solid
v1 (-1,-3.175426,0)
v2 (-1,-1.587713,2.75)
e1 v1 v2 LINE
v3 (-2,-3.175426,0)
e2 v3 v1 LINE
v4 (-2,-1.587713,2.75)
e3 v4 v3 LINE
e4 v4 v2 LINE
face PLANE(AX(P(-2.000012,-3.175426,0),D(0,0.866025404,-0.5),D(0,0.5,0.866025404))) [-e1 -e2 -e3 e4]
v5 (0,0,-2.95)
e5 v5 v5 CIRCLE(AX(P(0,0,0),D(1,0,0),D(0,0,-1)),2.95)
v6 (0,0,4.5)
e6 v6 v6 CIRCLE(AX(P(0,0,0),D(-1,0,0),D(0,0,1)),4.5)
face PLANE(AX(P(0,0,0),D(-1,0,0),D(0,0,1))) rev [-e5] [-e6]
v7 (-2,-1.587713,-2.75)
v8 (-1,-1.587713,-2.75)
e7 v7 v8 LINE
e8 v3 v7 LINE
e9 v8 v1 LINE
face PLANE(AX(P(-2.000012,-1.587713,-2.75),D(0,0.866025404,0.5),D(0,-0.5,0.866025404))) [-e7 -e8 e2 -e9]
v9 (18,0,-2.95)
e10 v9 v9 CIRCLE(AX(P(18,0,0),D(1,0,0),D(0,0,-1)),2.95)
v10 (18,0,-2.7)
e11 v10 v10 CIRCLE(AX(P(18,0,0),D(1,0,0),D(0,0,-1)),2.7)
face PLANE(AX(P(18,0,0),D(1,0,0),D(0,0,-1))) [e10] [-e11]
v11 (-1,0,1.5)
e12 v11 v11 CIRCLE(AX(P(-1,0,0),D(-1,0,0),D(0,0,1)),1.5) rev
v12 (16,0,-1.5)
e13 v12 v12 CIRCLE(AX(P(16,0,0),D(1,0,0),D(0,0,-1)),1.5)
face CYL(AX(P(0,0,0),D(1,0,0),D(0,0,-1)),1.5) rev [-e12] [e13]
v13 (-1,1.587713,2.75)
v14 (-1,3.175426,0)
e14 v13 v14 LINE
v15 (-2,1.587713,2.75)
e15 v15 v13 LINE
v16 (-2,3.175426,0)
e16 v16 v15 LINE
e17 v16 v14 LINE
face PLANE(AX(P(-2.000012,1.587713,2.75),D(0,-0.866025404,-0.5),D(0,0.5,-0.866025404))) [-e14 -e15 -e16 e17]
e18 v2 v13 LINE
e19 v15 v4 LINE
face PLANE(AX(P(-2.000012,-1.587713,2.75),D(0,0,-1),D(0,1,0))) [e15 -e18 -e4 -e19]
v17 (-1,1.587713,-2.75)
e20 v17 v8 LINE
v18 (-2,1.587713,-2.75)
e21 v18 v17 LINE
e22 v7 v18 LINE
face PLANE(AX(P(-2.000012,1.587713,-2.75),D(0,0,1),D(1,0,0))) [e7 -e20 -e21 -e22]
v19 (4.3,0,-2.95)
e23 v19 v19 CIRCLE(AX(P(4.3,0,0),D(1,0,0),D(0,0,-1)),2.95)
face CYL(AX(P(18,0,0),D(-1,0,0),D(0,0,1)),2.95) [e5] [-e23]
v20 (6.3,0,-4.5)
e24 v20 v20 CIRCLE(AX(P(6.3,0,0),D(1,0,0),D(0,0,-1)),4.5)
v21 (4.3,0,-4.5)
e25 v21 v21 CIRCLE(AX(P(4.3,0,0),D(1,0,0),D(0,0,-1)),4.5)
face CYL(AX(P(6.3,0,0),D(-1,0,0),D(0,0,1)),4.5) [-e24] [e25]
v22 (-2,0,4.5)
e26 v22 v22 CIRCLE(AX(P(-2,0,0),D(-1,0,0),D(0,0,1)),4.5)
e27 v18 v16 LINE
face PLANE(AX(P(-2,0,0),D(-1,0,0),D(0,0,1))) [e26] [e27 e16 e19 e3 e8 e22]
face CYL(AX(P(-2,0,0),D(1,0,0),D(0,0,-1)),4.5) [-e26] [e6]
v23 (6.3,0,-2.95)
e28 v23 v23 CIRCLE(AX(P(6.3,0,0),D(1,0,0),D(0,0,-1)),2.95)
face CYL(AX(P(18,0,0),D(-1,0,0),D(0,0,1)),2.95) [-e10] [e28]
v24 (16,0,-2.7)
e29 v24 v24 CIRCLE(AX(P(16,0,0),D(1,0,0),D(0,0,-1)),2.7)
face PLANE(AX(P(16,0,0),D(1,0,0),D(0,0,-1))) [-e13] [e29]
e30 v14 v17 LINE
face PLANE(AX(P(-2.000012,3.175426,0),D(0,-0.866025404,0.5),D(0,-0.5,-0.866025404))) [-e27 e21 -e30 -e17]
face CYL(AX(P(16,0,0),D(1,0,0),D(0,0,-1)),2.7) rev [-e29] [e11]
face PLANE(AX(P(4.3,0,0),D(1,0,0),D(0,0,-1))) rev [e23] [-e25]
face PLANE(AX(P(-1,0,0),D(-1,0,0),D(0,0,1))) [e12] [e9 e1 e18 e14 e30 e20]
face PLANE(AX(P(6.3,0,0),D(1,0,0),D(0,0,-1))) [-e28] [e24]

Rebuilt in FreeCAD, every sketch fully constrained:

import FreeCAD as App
import Part
import Sketcher
from FreeCAD import Vector
Q = App.Units.Quantity


def add_polygon(sketch, points):
    """Adds a closed chain of lines whose ends are joined by coincident constraints."""
    first, n = sketch.GeometryCount, len(points)
    for a, b in zip(points, points[1:] + points[:1]):
        sketch.addGeometry(Part.LineSegment(App.Vector(*a, 0), App.Vector(*b, 0)), False)
    for i in range(n):
        sketch.addConstraint(Sketcher.Constraint("Coincident", first + i, 2, first + (i + 1) % n, 1))

doc = App.newDocument("Part")
body = doc.addObject("PartDesign::Body", "Body")

sketch1 = body.newObject("Sketcher::SketchObject", "Sketch")
sketch1.AttachmentSupport = (doc.getObject("YZ_Plane"), [""])
sketch1.MapMode = "FlatFace"
sketch1.addGeometry(Part.Circle(Vector(0, 0, 0), Vector(0, 0, 1), 3), False)
sketch1.addConstraint([
    Sketcher.Constraint("Coincident", 0, 3, -1, 1),
    Sketcher.Constraint("Diameter", 0, Q("5.9 mm")),
])
pad1 = body.newObject("PartDesign::Pad", "Pad")
pad1.Profile = sketch1
pad1.Length = 18

sketch2 = body.newObject("Sketcher::SketchObject", "Sketch001")
sketch2.AttachmentSupport = (doc.getObject("YZ_Plane"), [""])
sketch2.MapMode = "FlatFace"
sketch2.AttachmentOffset = App.Placement(Vector(0, 0, 18), App.Rotation())
sketch2.addGeometry(Part.Circle(Vector(0, 0, 0), Vector(0, 0, 1), 2.7), False)
sketch2.addConstraint([
    Sketcher.Constraint("Coincident", 0, 3, -1, 1),
    Sketcher.Constraint("Diameter", 0, Q("5.4 mm")),
])
pocket1 = body.newObject("PartDesign::Pocket", "Pocket")
pocket1.Profile = sketch2
pocket1.Length = 2

sketch3 = body.newObject("Sketcher::SketchObject", "Sketch002")
sketch3.AttachmentSupport = (doc.getObject("YZ_Plane"), [""])
sketch3.MapMode = "FlatFace"
sketch3.AttachmentOffset = App.Placement(Vector(0, 0, 16), App.Rotation())
sketch3.addGeometry(Part.Circle(Vector(0, 0, 0), Vector(0, 0, 1), 1.5), False)
sketch3.addConstraint([
    Sketcher.Constraint("Coincident", 0, 3, -1, 1),
    Sketcher.Constraint("Diameter", 0, Q("3 mm")),
])
pocket2 = body.newObject("PartDesign::Pocket", "Pocket001")
pocket2.Profile = sketch3
pocket2.Type = "ThroughAll"
pocket2.Midplane = True

sketch4 = body.newObject("Sketcher::SketchObject", "Sketch003")
sketch4.AttachmentSupport = (doc.getObject("YZ_Plane"), [""])
sketch4.MapMode = "FlatFace"
sketch4.addGeometry(Part.Circle(Vector(0, 0, 0), Vector(0, 0, 1), 4.5), False)
sketch4.addConstraint([
    Sketcher.Constraint("Coincident", 0, 3, -1, 1),
    Sketcher.Constraint("Diameter", 0, Q("9 mm")),
])
pad2 = body.newObject("PartDesign::Pad", "Pad001")
pad2.Profile = sketch4
pad2.Length = 2
pad2.Reversed = True

sketch5 = body.newObject("Sketcher::SketchObject", "Sketch004")
sketch5.AttachmentSupport = (doc.getObject("YZ_Plane"), [""])
sketch5.MapMode = "FlatFace"
sketch5.AttachmentOffset = App.Placement(Vector(0, 0, 6.3), App.Rotation())
sketch5.addGeometry(Part.Circle(Vector(0, 0, 0), Vector(0, 0, 1), 4.5), False)
sketch5.addConstraint([
    Sketcher.Constraint("Coincident", 0, 3, -1, 1),
    Sketcher.Constraint("Diameter", 0, Q("9 mm")),
])
pad3 = body.newObject("PartDesign::Pad", "Pad002")
pad3.Profile = sketch5
pad3.Length = 2
pad3.Reversed = True

sketch6 = body.newObject("Sketcher::SketchObject", "Sketch005")
sketch6.AttachmentSupport = (doc.getObject("YZ_Plane"), [""])
sketch6.MapMode = "FlatFace"
sketch6.AttachmentOffset = App.Placement(Vector(0, 0, -2), App.Rotation())
sketch6.addGeometry(Part.Circle(Vector(0, 0, 0), Vector(0, 0, 1), 1.5), False)
sketch6.addConstraint([
    Sketcher.Constraint("Coincident", 0, 3, -1, 1),
    Sketcher.Constraint("Diameter", 0, Q("3 mm")),
])
pocket3 = body.newObject("PartDesign::Pocket", "Pocket002")
pocket3.Profile = sketch6
pocket3.Type = "ThroughAll"
pocket3.Midplane = True

sketch7 = body.newObject("Sketcher::SketchObject", "Sketch006")
sketch7.AttachmentSupport = (doc.getObject("YZ_Plane"), [""])
sketch7.MapMode = "FlatFace"
sketch7.AttachmentOffset = App.Placement(Vector(0, 0, -2), App.Rotation())
add_polygon(sketch7, [(-1.6, 2.8), (1.6, 2.8), (3.2, 0), (1.6, -2.8), (-1.6, -2.8), (-3.2, 0)])
sketch7.addConstraint([
    Sketcher.Constraint("Horizontal", 0),
    Sketcher.Constraint("Horizontal", 3),
    Sketcher.Constraint("Symmetric", 0, 2, 3, 2, -1, 1),
    Sketcher.Constraint("Symmetric", 1, 2, 4, 2, -1, 1),
    Sketcher.Constraint("PointOnObject", 1, 2, -1),
    Sketcher.Constraint("Parallel", 2, 5),
    Sketcher.Constraint("Vertical", 0, 2, 2, 2),
    Sketcher.Constraint("Angle", 1, Q("-60 deg")),
    Sketcher.Constraint("DistanceY", 2, 2, 0, 2, Q("5.5 mm")),
    Sketcher.Constraint("DistanceX", 0, 1, 0, 2, Q("3.175426 mm")),
])
pocket4 = body.newObject("PartDesign::Pocket", "Pocket003")
pocket4.Profile = sketch7
pocket4.Type = "TwoLengths"
pocket4.Length = 21.988092
pocket4.Length2 = 1

doc.recompute()
